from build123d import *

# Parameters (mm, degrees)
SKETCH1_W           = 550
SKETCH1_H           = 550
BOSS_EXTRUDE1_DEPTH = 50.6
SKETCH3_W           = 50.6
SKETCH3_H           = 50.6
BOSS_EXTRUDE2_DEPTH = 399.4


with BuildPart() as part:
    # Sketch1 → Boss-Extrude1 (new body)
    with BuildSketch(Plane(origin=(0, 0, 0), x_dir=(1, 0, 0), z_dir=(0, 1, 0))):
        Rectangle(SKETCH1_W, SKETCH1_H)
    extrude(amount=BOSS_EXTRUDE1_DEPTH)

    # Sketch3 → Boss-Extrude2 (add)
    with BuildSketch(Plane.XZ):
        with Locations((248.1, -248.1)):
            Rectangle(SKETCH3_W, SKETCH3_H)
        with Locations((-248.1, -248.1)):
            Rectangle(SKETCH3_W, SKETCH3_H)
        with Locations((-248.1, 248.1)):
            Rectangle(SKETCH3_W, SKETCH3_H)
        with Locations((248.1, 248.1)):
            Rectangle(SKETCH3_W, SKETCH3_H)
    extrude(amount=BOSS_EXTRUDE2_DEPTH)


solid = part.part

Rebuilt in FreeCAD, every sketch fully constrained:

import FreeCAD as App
import Part
import Sketcher
from FreeCAD import Vector
Q = App.Units.Quantity


def add_polygon(sketch, points):
    """Adds a closed chain of lines whose ends are joined by coincident constraints."""
    first, n = sketch.GeometryCount, len(points)
    for a, b in zip(points, points[1:] + points[:1]):
        sketch.addGeometry(Part.LineSegment(App.Vector(*a, 0), App.Vector(*b, 0)), False)
    for i in range(n):
        sketch.addConstraint(Sketcher.Constraint("Coincident", first + i, 2, first + (i + 1) % n, 1))

doc = App.newDocument("Part")
params = doc.addObject("Spreadsheet::Sheet", "Params")
for row, (alias, value) in enumerate([
    ("sketch1_width", "550 mm"),
    ("pad1_length", "50.6 mm"),
    ("sketch2_width", "50.6 mm"),
    ("pad2_length", "399.4 mm"),
], start=1):
    params.set(f"A{row}", alias)
    params.set(f"B{row}", "=" + value)
    params.setAlias(f"B{row}", alias)

body = doc.addObject("PartDesign::Body", "Body")

# Sketch on XZ plane
sketch1 = doc.addObject("Sketcher::SketchObject", "Sketch")
body.addObject(sketch1)
sketch1.AttachmentSupport = (doc.XZ_Plane, [""])
sketch1.MapMode = "FlatFace"
add_polygon(sketch1, [(-275, -275), (-275, 275), (275, 275), (275, -275)])  # lines 0-3
sketch1.addConstraint(Sketcher.Constraint("Vertical", 0))
sketch1.addConstraint(Sketcher.Constraint("Horizontal", 1))
sketch1.addConstraint(Sketcher.Constraint("Vertical", 2))
sketch1.addConstraint(Sketcher.Constraint("Horizontal", 3))
sketch1.addConstraint(Sketcher.Constraint("Symmetric", 0, 2, 2, 2, -1, 1))
sketch1.addConstraint(Sketcher.Constraint("Equal", 3, 0))
sketch1.addConstraint(Sketcher.Constraint("DistanceX", 1, 1, 1, 2, Q("550 mm")))
sketch1.setExpression("Constraints[10]", "Params.sketch1_width")
pad1 = doc.addObject("PartDesign::Pad", "Pad")
body.addObject(pad1)
pad1.Profile = sketch1
pad1.setExpression("Length", "Params.pad1_length")
pad1.Reversed = True

# Sketch on XZ plane
sketch2 = doc.addObject("Sketcher::SketchObject", "Sketch001")
body.addObject(sketch2)
sketch2.AttachmentSupport = (doc.XZ_Plane, [""])
sketch2.MapMode = "FlatFace"
add_polygon(sketch2, [(223, -223), (223, -273), (273, -273), (273, -223)])  # lines 0-3
add_polygon(sketch2, [(-273, -223), (-273, -273), (-223, -273), (-223, -223)])  # lines 4-7
add_polygon(sketch2, [(-273, 273), (-273, 223), (-223, 223), (-223, 273)])  # lines 8-11
add_polygon(sketch2, [(223, 273), (223, 223), (273, 223), (273, 273)])  # lines 12-15
sketch2.addConstraint(Sketcher.Constraint("Vertical", 0))
sketch2.addConstraint(Sketcher.Constraint("Horizontal", 1))
sketch2.addConstraint(Sketcher.Constraint("Vertical", 2))
sketch2.addConstraint(Sketcher.Constraint("Horizontal", 3))
sketch2.addConstraint(Sketcher.Constraint("Vertical", 4))
sketch2.addConstraint(Sketcher.Constraint("Horizontal", 5))
sketch2.addConstraint(Sketcher.Constraint("Vertical", 6))
sketch2.addConstraint(Sketcher.Constraint("Horizontal", 7))
sketch2.addConstraint(Sketcher.Constraint("Vertical", 8))
sketch2.addConstraint(Sketcher.Constraint("Horizontal", 9))
sketch2.addConstraint(Sketcher.Constraint("Vertical", 10))
sketch2.addConstraint(Sketcher.Constraint("Horizontal", 11))
sketch2.addConstraint(Sketcher.Constraint("Vertical", 12))
sketch2.addConstraint(Sketcher.Constraint("Horizontal", 13))
sketch2.addConstraint(Sketcher.Constraint("Vertical", 14))
sketch2.addConstraint(Sketcher.Constraint("Horizontal", 15))
sketch2.addConstraint(Sketcher.Constraint("Symmetric", 2, 2, 8, 2, -1, 1))
sketch2.addConstraint(Sketcher.Constraint("Symmetric", 0, 2, 10, 2, -1, 1))
sketch2.addConstraint(Sketcher.Constraint("Symmetric", 6, 2, 12, 2, -1, 1))
sketch2.addConstraint(Sketcher.Constraint("Symmetric", 4, 2, 14, 2, -1, 1))
sketch2.addConstraint(Sketcher.Constraint("Symmetric", 1, 2, 4, 2, -2))
sketch2.addConstraint(Sketcher.Constraint("Symmetric", 3, 2, 6, 2, -2))
sketch2.addConstraint(Sketcher.Constraint("Equal", 15, 0))
sketch2.addConstraint(Sketcher.Constraint("DistanceX", 1, 1, 1, 2, Q("50.6 mm")))
sketch2.addConstraint(Sketcher.Constraint("DistanceX", -1, 1, 0, 2, Q("222.8 mm")))
sketch2.addConstraint(Sketcher.Constraint("DistanceY", 0, 2, -1, 1, Q("273.4 mm")))
sketch2.setExpression("Constraints[39]", "Params.sketch2_width")
pad2 = doc.addObject("PartDesign::Pad", "Pad001")
body.addObject(pad2)
pad2.Profile = sketch2
pad2.setExpression("Length", "Params.pad2_length")

doc.recompute()
